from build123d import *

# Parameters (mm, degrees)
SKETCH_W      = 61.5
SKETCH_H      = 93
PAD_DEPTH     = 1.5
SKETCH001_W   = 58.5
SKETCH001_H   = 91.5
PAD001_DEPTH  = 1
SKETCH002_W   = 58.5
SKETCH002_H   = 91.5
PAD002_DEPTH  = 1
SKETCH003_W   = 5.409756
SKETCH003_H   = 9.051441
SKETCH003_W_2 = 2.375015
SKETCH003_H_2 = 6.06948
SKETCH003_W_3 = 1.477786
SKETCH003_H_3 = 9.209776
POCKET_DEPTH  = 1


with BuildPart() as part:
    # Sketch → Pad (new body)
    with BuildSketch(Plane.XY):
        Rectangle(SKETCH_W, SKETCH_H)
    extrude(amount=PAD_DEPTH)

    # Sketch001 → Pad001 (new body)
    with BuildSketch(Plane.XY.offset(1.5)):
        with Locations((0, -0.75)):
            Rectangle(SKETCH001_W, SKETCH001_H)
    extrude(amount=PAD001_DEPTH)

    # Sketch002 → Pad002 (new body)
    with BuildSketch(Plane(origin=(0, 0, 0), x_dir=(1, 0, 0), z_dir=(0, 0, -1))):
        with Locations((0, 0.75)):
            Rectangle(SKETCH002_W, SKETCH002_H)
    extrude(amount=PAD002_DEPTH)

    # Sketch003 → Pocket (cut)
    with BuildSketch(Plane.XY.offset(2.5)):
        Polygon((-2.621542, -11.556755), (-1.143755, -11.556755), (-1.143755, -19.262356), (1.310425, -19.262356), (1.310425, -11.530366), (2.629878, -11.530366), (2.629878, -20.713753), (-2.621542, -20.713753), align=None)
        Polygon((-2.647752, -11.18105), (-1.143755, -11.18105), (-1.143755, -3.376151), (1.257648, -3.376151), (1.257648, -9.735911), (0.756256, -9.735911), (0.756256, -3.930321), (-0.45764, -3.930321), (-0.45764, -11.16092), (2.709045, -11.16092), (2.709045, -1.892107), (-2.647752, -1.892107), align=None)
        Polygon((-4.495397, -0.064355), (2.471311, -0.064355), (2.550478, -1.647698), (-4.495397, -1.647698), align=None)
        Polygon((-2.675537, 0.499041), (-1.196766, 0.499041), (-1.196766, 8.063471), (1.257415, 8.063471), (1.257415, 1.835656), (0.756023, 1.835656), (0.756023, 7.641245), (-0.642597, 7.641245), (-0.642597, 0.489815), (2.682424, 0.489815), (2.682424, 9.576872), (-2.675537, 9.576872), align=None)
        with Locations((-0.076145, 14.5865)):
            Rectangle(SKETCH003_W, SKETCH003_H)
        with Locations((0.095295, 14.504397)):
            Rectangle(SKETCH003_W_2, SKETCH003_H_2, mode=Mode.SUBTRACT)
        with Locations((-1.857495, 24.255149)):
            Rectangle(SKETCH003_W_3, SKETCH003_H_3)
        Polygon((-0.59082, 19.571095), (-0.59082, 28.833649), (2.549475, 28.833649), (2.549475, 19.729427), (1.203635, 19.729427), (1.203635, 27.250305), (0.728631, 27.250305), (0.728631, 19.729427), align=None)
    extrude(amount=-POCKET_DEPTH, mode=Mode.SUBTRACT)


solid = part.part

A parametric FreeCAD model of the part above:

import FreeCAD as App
import Part
import Sketcher

V = App.Vector
Q = App.Units.Quantity

doc = App.newDocument("Part")
body = doc.addObject("PartDesign::Body", "Body")

# Sketch on XY plane
sketch1 = doc.addObject("Sketcher::SketchObject", "Sketch")
body.addObject(sketch1)
sketch1.AttachmentSupport = (doc.XY_Plane, [""])
sketch1.MapMode = "FlatFace"
sketch1.addGeometry([
    Part.LineSegment(V(-30.75, 46.5, 0), V(-30.75, -46.5, 0)),
    Part.LineSegment(V(-30.75, -46.5, 0), V(30.75, -46.5, 0)),
    Part.LineSegment(V(30.75, -46.5, 0), V(30.75, 46.5, 0)),
    Part.LineSegment(V(30.75, 46.5, 0), V(-30.75, 46.5, 0)),
], False)
sketch1.addConstraint([
    Sketcher.Constraint("Coincident", 0, 2, 1, 1),
    Sketcher.Constraint("Coincident", 1, 2, 2, 1),
    Sketcher.Constraint("Coincident", 2, 2, 3, 1),
    Sketcher.Constraint("Coincident", 3, 2, 0, 1),
    Sketcher.Constraint("Vertical", 0),
    Sketcher.Constraint("Horizontal", 1),
    Sketcher.Constraint("Vertical", 2),
    Sketcher.Constraint("Horizontal", 3),
    Sketcher.Constraint("Symmetric", 0, 2, 2, 2, -1, 1),
    Sketcher.Constraint("DistanceY", 0, 2, 0, 1, Q("93 mm")),
    Sketcher.Constraint("DistanceX", 1, 1, 1, 2, Q("61.5 mm")),
])
pad1 = doc.addObject("PartDesign::Pad", "Pad")
body.addObject(pad1)
pad1.Profile = sketch1
pad1.Length = 1.5

# Sketch on XY plane
sketch2 = doc.addObject("Sketcher::SketchObject", "Sketch001")
body.addObject(sketch2)
sketch2.AttachmentSupport = (doc.XY_Plane, [""])
sketch2.MapMode = "FlatFace"
sketch2.AttachmentOffset = App.Placement(V(0, 0, 1.5), App.Rotation())
sketch2.addGeometry([
    Part.LineSegment(V(-29.25, 45, 0), V(-29.25, -46.5, 0)),
    Part.LineSegment(V(-29.25, -46.5, 0), V(29.25, -46.5, 0)),
    Part.LineSegment(V(29.25, -46.5, 0), V(29.25, 45, 0)),
    Part.LineSegment(V(29.25, 45, 0), V(-29.25, 45, 0)),
], False)
sketch2.addConstraint([
    Sketcher.Constraint("Coincident", 0, 2, 1, 1),
    Sketcher.Constraint("Coincident", 1, 2, 2, 1),
    Sketcher.Constraint("Coincident", 2, 2, 3, 1),
    Sketcher.Constraint("Coincident", 3, 2, 0, 1),
    Sketcher.Constraint("Vertical", 0),
    Sketcher.Constraint("Horizontal", 1),
    Sketcher.Constraint("Vertical", 2),
    Sketcher.Constraint("Horizontal", 3),
    Sketcher.Constraint("DistanceX", 1, 1, 1, 2, Q("58.5 mm")),
    Sketcher.Constraint("DistanceY", 0, 2, 0, 1, Q("91.5 mm")),
    Sketcher.Constraint("DistanceY", -1, 1, 2, 2, Q("45 mm")),
    Sketcher.Constraint("DistanceX", 0, 2, -1, 1, Q("29.25 mm")),
])
pad2 = doc.addObject("PartDesign::Pad", "Pad001")
body.addObject(pad2)
pad2.Profile = sketch2
pad2.Length = 1

# Sketch on XY plane
sketch3 = doc.addObject("Sketcher::SketchObject", "Sketch002")
body.addObject(sketch3)
sketch3.AttachmentSupport = (doc.XY_Plane, [""])
sketch3.MapMode = "FlatFace"
sketch3.addGeometry([
    Part.LineSegment(V(-29.25, -46.5, 0), V(-29.25, 45, 0)),
    Part.LineSegment(V(-29.25, 45, 0), V(29.25, 45, 0)),
    Part.LineSegment(V(29.25, 45, 0), V(29.25, -46.5, 0)),
    Part.LineSegment(V(29.25, -46.5, 0), V(-29.25, -46.5, 0)),
], False)
sketch3.addConstraint([
    Sketcher.Constraint("Coincident", 0, 2, 1, 1),
    Sketcher.Constraint("Coincident", 1, 2, 2, 1),
    Sketcher.Constraint("Coincident", 2, 2, 3, 1),
    Sketcher.Constraint("Coincident", 3, 2, 0, 1),
    Sketcher.Constraint("Vertical", 0),
    Sketcher.Constraint("Horizontal", 1),
    Sketcher.Constraint("Vertical", 2),
    Sketcher.Constraint("Horizontal", 3),
    Sketcher.Constraint("DistanceX", 1, 1, 1, 2, Q("58.5 mm")),
    Sketcher.Constraint("DistanceY", 0, 1, 0, 2, Q("91.5 mm")),
    Sketcher.Constraint("DistanceY", -1, 1, 0, 2, Q("45 mm")),
    Sketcher.Constraint("DistanceX", 0, 2, -1, 1, Q("29.25 mm")),
])
pad3 = doc.addObject("PartDesign::Pad", "Pad002")
body.addObject(pad3)
pad3.Profile = sketch3
pad3.Length = 1
pad3.Reversed = True

# Sketch on XY plane
sketch4 = doc.addObject("Sketcher::SketchObject", "Sketch003")
body.addObject(sketch4)
sketch4.AttachmentSupport = (doc.XY_Plane, [""])
sketch4.MapMode = "FlatFace"
sketch4.AttachmentOffset = App.Placement(V(0, 0, 2.5), App.Rotation())
sketch4.addGeometry([
    Part.LineSegment(V(-1.143755, -11.556755, 0), V(-2.621542, -11.556755, 0)),  # 0
    Part.LineSegment(V(-2.621542, -11.556755, 0), V(-2.621542, -20.713753, 0)),  # 1
    Part.LineSegment(V(-2.621542, -20.713753, 0), V(2.629878, -20.713753, 0)),  # 2
    Part.LineSegment(V(2.629878, -20.713753, 0), V(2.629878, -11.530366, 0)),  # 3
    Part.LineSegment(V(2.629878, -11.530366, 0), V(1.310425, -11.530366, 0)),  # 4
    Part.LineSegment(V(1.310425, -11.530366, 0), V(1.310425, -19.262356, 0)),  # 5
    Part.LineSegment(V(1.310425, -19.262356, 0), V(-1.143755, -19.262356, 0)),  # 6
    Part.LineSegment(V(-1.143755, -19.262356, 0), V(-1.143755, -11.556755, 0)),  # 7
    Part.LineSegment(V(-2.647752, -11.18105, 0), V(-1.143755, -11.18105, 0)),  # 8
    Part.LineSegment(V(-1.143755, -11.18105, 0), V(-1.143755, -3.376151, 0)),  # 9
    Part.LineSegment(V(-1.143755, -3.376151, 0), V(1.257648, -3.376151, 0)),  # 10
    Part.LineSegment(V(1.257648, -3.376151, 0), V(1.257648, -9.735911, 0)),  # 11
    Part.LineSegment(V(1.257648, -9.735911, 0), V(0.756256, -9.735911, 0)),  # 12
    Part.LineSegment(V(0.756256, -9.735911, 0), V(0.756256, -3.930321, 0)),  # 13
    Part.LineSegment(V(0.756256, -3.930321, 0), V(-0.45764, -3.930321, 0)),  # 14
    Part.LineSegment(V(-0.45764, -3.930321, 0), V(-0.45764, -11.16092, 0)),  # 15
    Part.LineSegment(V(-0.45764, -11.16092, 0), V(2.709045, -11.16092, 0)),  # 16
    Part.LineSegment(V(2.709045, -11.16092, 0), V(2.709045, -1.892107, 0)),  # 17
    Part.LineSegment(V(2.709045, -1.892107, 0), V(-2.647752, -1.892107, 0)),  # 18
    Part.LineSegment(V(-2.647752, -1.892107, 0), V(-2.647752, -11.18105, 0)),  # 19
    Part.LineSegment(V(2.471311, -0.064355, 0), V(-4.495397, -0.064355, 0)),  # 20
    Part.LineSegment(V(-4.495397, -0.064355, 0), V(-4.495397, -1.647698, 0)),  # 21
    Part.LineSegment(V(-4.495397, -1.647698, 0), V(2.550478, -1.647698, 0)),  # 22
    Part.LineSegment(V(2.550478, -1.647698, 0), V(2.471311, -0.064355, 0)),  # 23
    Part.LineSegment(V(-2.675537, 0.499041, 0), V(-1.196766, 0.499041, 0)),  # 24
    Part.LineSegment(V(-1.196766, 0.499041, 0), V(-1.196766, 8.063471, 0)),  # 25
    Part.LineSegment(V(-1.196766, 8.063471, 0), V(1.257415, 8.063471, 0)),  # 26
    Part.LineSegment(V(1.257415, 8.063471, 0), V(1.257415, 1.835656, 0)),  # 27
    Part.LineSegment(V(1.257415, 1.835656, 0), V(0.756023, 1.835656, 0)),  # 28
    Part.LineSegment(V(0.756023, 1.835656, 0), V(0.756023, 7.641245, 0)),  # 29
    Part.LineSegment(V(0.756023, 7.641245, 0), V(-0.642597, 7.641245, 0)),  # 30
    Part.LineSegment(V(-0.642597, 7.641245, 0), V(-0.642597, 0.489815, 0)),  # 31
    Part.LineSegment(V(-0.642597, 0.489815, 0), V(2.682424, 0.489815, 0)),  # 32
    Part.LineSegment(V(2.682424, 0.489815, 0), V(2.682424, 9.576872, 0)),  # 33
    Part.LineSegment(V(2.682424, 9.576872, 0), V(-2.675537, 9.576872, 0)),  # 34
    Part.LineSegment(V(-2.675537, 9.576872, 0), V(-2.675537, 0.499041, 0)),  # 35
    Part.LineSegment(V(-2.781023, 19.11222, 0), V(-2.781023, 10.06078, 0)),  # 36
    Part.LineSegment(V(-2.781023, 10.06078, 0), V(2.628733, 10.06078, 0)),  # 37
    Part.LineSegment(V(2.628733, 10.06078, 0), V(2.628733, 19.11222, 0)),  # 38
    Part.LineSegment(V(2.628733, 19.11222, 0), V(-2.781023, 19.11222, 0)),  # 39
    Part.LineSegment(V(1.282803, 11.469657, 0), V(-1.092213, 11.469657, 0)),  # 40
    Part.LineSegment(V(-1.092213, 11.469657, 0), V(-1.092213, 17.539137, 0)),  # 41
    Part.LineSegment(V(-1.092213, 17.539137, 0), V(1.282803, 17.539137, 0)),  # 42
    Part.LineSegment(V(1.282803, 17.539137, 0), V(1.282803, 11.469657, 0)),  # 43
    Part.LineSegment(V(-2.596388, 28.860037, 0), V(-2.596388, 19.650261, 0)),  # 44
    Part.LineSegment(V(-2.596388, 19.650261, 0), V(-1.118602, 19.650261, 0)),  # 45
    Part.LineSegment(V(-1.118602, 19.650261, 0), V(-1.118602, 28.860037, 0)),  # 46
    Part.LineSegment(V(-1.118602, 28.860037, 0), V(-2.596388, 28.860037, 0)),  # 47
    Part.LineSegment(V(-0.59082, 28.833649, 0), V(-0.59082, 19.571095, 0)),  # 48
    Part.LineSegment(V(-0.59082, 19.571095, 0), V(0.728631, 19.729427, 0)),  # 49
    Part.LineSegment(V(0.728631, 19.729427, 0), V(0.728631, 27.250305, 0)),  # 50
    Part.LineSegment(V(0.728631, 27.250305, 0), V(1.203635, 27.250305, 0)),  # 51
    Part.LineSegment(V(1.203635, 27.250305, 0), V(1.203635, 19.729427, 0)),  # 52
    Part.LineSegment(V(1.203635, 19.729427, 0), V(2.549475, 19.729427, 0)),  # 53
    Part.LineSegment(V(2.549475, 19.729427, 0), V(2.549475, 28.833649, 0)),  # 54
    Part.LineSegment(V(2.549475, 28.833649, 0), V(-0.59082, 28.833649, 0)),  # 55
], False)
sketch4.addConstraint([
    Sketcher.Constraint("Coincident", 0, 2, 1, 1),
    Sketcher.Constraint("Coincident", 1, 2, 2, 1),
    Sketcher.Constraint("Coincident", 2, 2, 3, 1),
    Sketcher.Constraint("Coincident", 3, 2, 4, 1),
    Sketcher.Constraint("Coincident", 4, 2, 5, 1),
    Sketcher.Constraint("Coincident", 5, 2, 6, 1),
    Sketcher.Constraint("Coincident", 6, 2, 7, 1),
    Sketcher.Constraint("Coincident", 7, 2, 0, 1),
    Sketcher.Constraint("Coincident", 8, 2, 9, 1),
    Sketcher.Constraint("Coincident", 9, 2, 10, 1),
    Sketcher.Constraint("Coincident", 10, 2, 11, 1),
    Sketcher.Constraint("Coincident", 11, 2, 12, 1),
    Sketcher.Constraint("Coincident", 12, 2, 13, 1),
    Sketcher.Constraint("Coincident", 13, 2, 14, 1),
    Sketcher.Constraint("Coincident", 14, 2, 15, 1),
    Sketcher.Constraint("Coincident", 15, 2, 16, 1),
    Sketcher.Constraint("Coincident", 16, 2, 17, 1),
    Sketcher.Constraint("Coincident", 17, 2, 18, 1),
    Sketcher.Constraint("Coincident", 18, 2, 19, 1),
    Sketcher.Constraint("Coincident", 19, 2, 8, 1),
    Sketcher.Constraint("Coincident", 20, 2, 21, 1),
    Sketcher.Constraint("Coincident", 21, 2, 22, 1),
    Sketcher.Constraint("Coincident", 22, 2, 23, 1),
    Sketcher.Constraint("Coincident", 23, 2, 20, 1),
    Sketcher.Constraint("Coincident", 24, 2, 25, 1),
    Sketcher.Constraint("Coincident", 25, 2, 26, 1),
    Sketcher.Constraint("Coincident", 26, 2, 27, 1),
    Sketcher.Constraint("Coincident", 27, 2, 28, 1),
    Sketcher.Constraint("Coincident", 28, 2, 29, 1),
    Sketcher.Constraint("Coincident", 29, 2, 30, 1),
    Sketcher.Constraint("Coincident", 30, 2, 31, 1),
    Sketcher.Constraint("Coincident", 31, 2, 32, 1),
    Sketcher.Constraint("Coincident", 32, 2, 33, 1),
    Sketcher.Constraint("Coincident", 33, 2, 34, 1),
    Sketcher.Constraint("Coincident", 34, 2, 35, 1),
    Sketcher.Constraint("Coincident", 35, 2, 24, 1),
    Sketcher.Constraint("Coincident", 36, 2, 37, 1),
    Sketcher.Constraint("Coincident", 37, 2, 38, 1),
    Sketcher.Constraint("Coincident", 38, 2, 39, 1),
    Sketcher.Constraint("Coincident", 39, 2, 36, 1),
    Sketcher.Constraint("Coincident", 40, 2, 41, 1),
    Sketcher.Constraint("Coincident", 41, 2, 42, 1),
    Sketcher.Constraint("Coincident", 42, 2, 43, 1),
    Sketcher.Constraint("Coincident", 43, 2, 40, 1),
    Sketcher.Constraint("Coincident", 44, 2, 45, 1),
    Sketcher.Constraint("Coincident", 45, 2, 46, 1),
    Sketcher.Constraint("Coincident", 46, 2, 47, 1),
    Sketcher.Constraint("Coincident", 47, 2, 44, 1),
    Sketcher.Constraint("Coincident", 48, 2, 49, 1),
    Sketcher.Constraint("Coincident", 49, 2, 50, 1),
    Sketcher.Constraint("Coincident", 50, 2, 51, 1),
    Sketcher.Constraint("Coincident", 51, 2, 52, 1),
    Sketcher.Constraint("Coincident", 52, 2, 53, 1),
    Sketcher.Constraint("Coincident", 53, 2, 54, 1),
    Sketcher.Constraint("Coincident", 54, 2, 55, 1),
    Sketcher.Constraint("Coincident", 55, 2, 48, 1),
    Sketcher.Constraint("Horizontal", 0),
    Sketcher.Constraint("Vertical", 1),
    Sketcher.Constraint("Horizontal", 2),
    Sketcher.Constraint("Vertical", 3),
    Sketcher.Constraint("Horizontal", 4),
    Sketcher.Constraint("Vertical", 5),
    Sketcher.Constraint("Horizontal", 6),
    Sketcher.Constraint("Vertical", 7),
    Sketcher.Constraint("Horizontal", 8),
    Sketcher.Constraint("Vertical", 9),
    Sketcher.Constraint("Horizontal", 10),
    Sketcher.Constraint("Vertical", 11),
    Sketcher.Constraint("Horizontal", 12),
    Sketcher.Constraint("Vertical", 13),
    Sketcher.Constraint("Horizontal", 14),
    Sketcher.Constraint("Vertical", 15),
    Sketcher.Constraint("Horizontal", 16),
    Sketcher.Constraint("Vertical", 17),
    Sketcher.Constraint("Horizontal", 18),
    Sketcher.Constraint("Vertical", 19),
    Sketcher.Constraint("Horizontal", 20),
    Sketcher.Constraint("Vertical", 21),
    Sketcher.Constraint("Horizontal", 22),
    Sketcher.Constraint("Horizontal", 24),
    Sketcher.Constraint("Vertical", 25),
    Sketcher.Constraint("Horizontal", 26),
    Sketcher.Constraint("Vertical", 27),
    Sketcher.Constraint("Horizontal", 28),
    Sketcher.Constraint("Vertical", 29),
    Sketcher.Constraint("Horizontal", 30),
    Sketcher.Constraint("Vertical", 31),
    Sketcher.Constraint("Horizontal", 32),
    Sketcher.Constraint("Vertical", 33),
    Sketcher.Constraint("Horizontal", 34),
    Sketcher.Constraint("Vertical", 35),
    Sketcher.Constraint("Vertical", 36),
    Sketcher.Constraint("Horizontal", 37),
    Sketcher.Constraint("Vertical", 38),
    Sketcher.Constraint("Horizontal", 39),
    Sketcher.Constraint("Horizontal", 40),
    Sketcher.Constraint("Vertical", 41),
    Sketcher.Constraint("Horizontal", 42),
    Sketcher.Constraint("Vertical", 43),
    Sketcher.Constraint("Vertical", 44),
    Sketcher.Constraint("Horizontal", 45),
    Sketcher.Constraint("Vertical", 46),
    Sketcher.Constraint("Horizontal", 47),
    Sketcher.Constraint("Vertical", 48),
    Sketcher.Constraint("Vertical", 50),
    Sketcher.Constraint("Horizontal", 51),
    Sketcher.Constraint("Vertical", 52),
    Sketcher.Constraint("Horizontal", 53),
    Sketcher.Constraint("Vertical", 54),
    Sketcher.Constraint("Horizontal", 55),
    Sketcher.Constraint("Horizontal", 49, 2, 52, 2),
    Sketcher.Constraint("Vertical", 7, 2, 8, 2),
    Sketcher.Constraint("Equal", 6, 26),
    Sketcher.Constraint("Equal", 12, 28),
    Sketcher.Constraint("Equal", 0, 45),
    Sketcher.Constraint("Equal", 13, 29),
    Sketcher.Constraint("DistanceY", 7, 1, 7, 2, Q("7.705601 mm")),
    Sketcher.Constraint("DistanceY", 9, 1, 9, 2, Q("7.804899 mm")),
    Sketcher.Constraint("DistanceY", 15, 2, 15, 1, Q("7.230599 mm")),
    Sketcher.Constraint("DistanceX", 2, 1, 2, 2, Q("5.25142 mm")),
    Sketcher.Constraint("DistanceX", 6, 2, 6, 1, Q("2.45418 mm")),
    Sketcher.Constraint("DistanceX", 24, 1, 24, 2, Q("1.478771 mm")),
    Sketcher.Constraint("DistanceX", 28, 2, 28, 1, Q("0.501392 mm")),
    Sketcher.Constraint("DistanceX", 30, 2, 30, 1, Q("1.39862 mm")),
    Sketcher.Constraint("DistanceX", 32, 1, 32, 2, Q("3.325021 mm")),
    Sketcher.Constraint("DistanceX", 53, 1, 53, 2, Q("1.34584 mm")),
    Sketcher.Constraint("DistanceY", 5, 2, 5, 1, Q("7.73199 mm")),
    Sketcher.Constraint("DistanceY", 11, 2, 11, 1, Q("6.35976 mm")),
    Sketcher.Constraint("DistanceY", 13, 1, 13, 2, Q("5.80559 mm")),
    Sketcher.Constraint("DistanceY", 25, 1, 25, 2, Q("7.56443 mm")),
    Sketcher.Constraint("DistanceY", 31, 2, 31, 1, Q("7.15143 mm")),
    Sketcher.Constraint("DistanceY", 35, 2, 35, 1, Q("9.077831 mm")),
    Sketcher.Constraint("DistanceY", 36, 2, 36, 1, Q("9.051441 mm")),
    Sketcher.Constraint("DistanceY", 41, 1, 41, 2, Q("6.06948 mm")),
    Sketcher.Constraint("DistanceY", 21, 2, -1, 1, Q("1.647698 mm")),
    Sketcher.Constraint("DistanceX", 0, 2, 15, 2, Q("2.163902 mm")),
    Sketcher.Constraint("DistanceX", 9, 2, 17, 2, Q("3.8528 mm")),
    Sketcher.Constraint("DistanceX", 18, 2, 10, 2, Q("3.9054 mm")),
    Sketcher.Constraint("DistanceX", 25, 2, 37, 2, Q("3.825499 mm")),
    Sketcher.Constraint("DistanceY", 41, 2, 46, 2, Q("11.3209 mm")),
    Sketcher.Constraint("Distance", 23, Q("1.585321 mm")),
    Sketcher.Constraint("DistanceX", 0, 2, 0, 1, Q("1.477787 mm")),
    Sketcher.Constraint("DistanceX", 8, 1, 8, 2, Q("1.503997 mm")),
    Sketcher.Constraint("DistanceX", 20, 2, 20, 1, Q("6.966708 mm")),
    Sketcher.Constraint("DistanceX", 22, 1, 22, 2, Q("7.045875 mm")),
    Sketcher.Constraint("DistanceX", 37, 1, 37, 2, Q("5.409756 mm")),
    Sketcher.Constraint("DistanceX", 40, 2, 40, 1, Q("2.375015 mm")),
    Sketcher.Constraint("DistanceX", 51, 1, 51, 2, Q("0.475004 mm")),
    Sketcher.Constraint("DistanceX", 55, 2, 55, 1, Q("3.140295 mm")),
    Sketcher.Constraint("DistanceY", 1, 2, 1, 1, Q("9.156998 mm")),
    Sketcher.Constraint("DistanceY", 17, 1, 17, 2, Q("9.268813 mm")),
    Sketcher.Constraint("DistanceY", 27, 2, 27, 1, Q("6.227815 mm")),
    Sketcher.Constraint("DistanceY", 44, 2, 44, 1, Q("9.209776 mm")),
    Sketcher.Constraint("DistanceY", 48, 2, 48, 1, Q("9.262554 mm")),
    Sketcher.Constraint("DistanceY", 50, 1, 50, 2, Q("7.520878 mm")),
    Sketcher.Constraint("DistanceY", 54, 1, 54, 2, Q("9.104222 mm")),
    Sketcher.Constraint("DistanceX", 0, 2, -1, 1, Q("2.621542 mm")),
    Sketcher.Constraint("DistanceY", 8, 2, -1, 1, Q("11.18105 mm")),
    Sketcher.Constraint("DistanceX", -1, 1, 22, 2, Q("2.550478 mm")),
    Sketcher.Constraint("DistanceY", -1, 1, 24, 2, Q("0.499041 mm")),
    Sketcher.Constraint("DistanceY", -1, 1, 36, 2, Q("10.06078 mm")),
    Sketcher.Constraint("DistanceX", 44, 2, -1, 1, Q("2.596388 mm")),
    Sketcher.Constraint("DistanceY", -1, 1, 44, 2, Q("19.650261 mm")),
    Sketcher.Constraint("DistanceX", 48, 2, -1, 1, Q("0.59082 mm")),
    Sketcher.Constraint("DistanceY", -1, 1, 54, 2, Q("28.833649 mm")),
    Sketcher.Constraint("DistanceX", 20, 2, 24, 2, Q("3.298631 mm")),
    Sketcher.Constraint("DistanceX", 36, 2, 40, 2, Q("1.68881 mm")),
    Sketcher.Constraint("DistanceY", 0, 2, -1, 1, Q("11.556755 mm")),
])
pocket1 = doc.addObject("PartDesign::Pocket", "Pocket")
body.addObject(pocket1)
pocket1.Profile = sketch4
pocket1.Length = 1

doc.recompute()
